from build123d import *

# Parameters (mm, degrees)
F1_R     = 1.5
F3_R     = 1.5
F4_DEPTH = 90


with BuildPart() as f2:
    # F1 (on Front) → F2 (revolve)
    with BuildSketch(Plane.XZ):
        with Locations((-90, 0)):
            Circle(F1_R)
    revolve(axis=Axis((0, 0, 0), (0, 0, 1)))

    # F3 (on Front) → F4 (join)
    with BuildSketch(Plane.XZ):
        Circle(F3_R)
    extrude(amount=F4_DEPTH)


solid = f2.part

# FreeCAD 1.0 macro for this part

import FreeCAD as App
import Part
import Sketcher
from FreeCAD import Vector

doc = App.newDocument("Part")
params = doc.addObject("Spreadsheet::Sheet", "Params")
for row, (alias, value) in enumerate([
    ("sketch1_diameter", "3 mm"),
    ("revolution_angle", "360 deg"),
    ("sketch2_diameter", "3 mm"),
    ("pad1_length", "90 mm"),
], start=1):
    params.set(f"A{row}", alias)
    params.set(f"B{row}", "=" + value)
    params.setAlias(f"B{row}", alias)

body = doc.addObject("PartDesign::Body", "Body")

# Sketch on XZ plane
sketch1 = body.newObject("Sketcher::SketchObject", "Sketch")
sketch1.AttachmentSupport = (doc.getObject("XZ_Plane"), [""])
sketch1.MapMode = "FlatFace"
sketch1.addGeometry(Part.Circle(Vector(-90, 0, 0), Vector(0, 0, 1), 1.5), False)
sketch1.addConstraint(Sketcher.Constraint("PointOnObject", 0, 3, -1))
sketch1.addConstraint(Sketcher.Constraint("Diameter", 0, 3.0))
sketch1.addConstraint(Sketcher.Constraint("DistanceX", 0, 3, -1, 1, 90.0))
sketch1.setExpression("Constraints[1]", "Params.sketch1_diameter")
revolution = body.newObject("PartDesign::Revolution", "Revolution")
revolution.Profile = sketch1
revolution.ReferenceAxis = (sketch1, ["V_Axis"])
revolution.setExpression("Angle", "Params.revolution_angle")

# Sketch on XZ plane
sketch2 = body.newObject("Sketcher::SketchObject", "Sketch001")
sketch2.AttachmentSupport = (doc.getObject("XZ_Plane"), [""])
sketch2.MapMode = "FlatFace"
sketch2.addGeometry(Part.Circle(Vector(0, 0, 0), Vector(0, 0, 1), 1.5), False)
sketch2.addConstraint(Sketcher.Constraint("Coincident", 0, 3, -1, 1))
sketch2.addConstraint(Sketcher.Constraint("Diameter", 0, 3.0))
sketch2.setExpression("Constraints[1]", "Params.sketch2_diameter")
pad1 = body.newObject("PartDesign::Pad", "Pad")
pad1.Profile = sketch2
pad1.setExpression("Length", "Params.pad1_length")

doc.recompute()
